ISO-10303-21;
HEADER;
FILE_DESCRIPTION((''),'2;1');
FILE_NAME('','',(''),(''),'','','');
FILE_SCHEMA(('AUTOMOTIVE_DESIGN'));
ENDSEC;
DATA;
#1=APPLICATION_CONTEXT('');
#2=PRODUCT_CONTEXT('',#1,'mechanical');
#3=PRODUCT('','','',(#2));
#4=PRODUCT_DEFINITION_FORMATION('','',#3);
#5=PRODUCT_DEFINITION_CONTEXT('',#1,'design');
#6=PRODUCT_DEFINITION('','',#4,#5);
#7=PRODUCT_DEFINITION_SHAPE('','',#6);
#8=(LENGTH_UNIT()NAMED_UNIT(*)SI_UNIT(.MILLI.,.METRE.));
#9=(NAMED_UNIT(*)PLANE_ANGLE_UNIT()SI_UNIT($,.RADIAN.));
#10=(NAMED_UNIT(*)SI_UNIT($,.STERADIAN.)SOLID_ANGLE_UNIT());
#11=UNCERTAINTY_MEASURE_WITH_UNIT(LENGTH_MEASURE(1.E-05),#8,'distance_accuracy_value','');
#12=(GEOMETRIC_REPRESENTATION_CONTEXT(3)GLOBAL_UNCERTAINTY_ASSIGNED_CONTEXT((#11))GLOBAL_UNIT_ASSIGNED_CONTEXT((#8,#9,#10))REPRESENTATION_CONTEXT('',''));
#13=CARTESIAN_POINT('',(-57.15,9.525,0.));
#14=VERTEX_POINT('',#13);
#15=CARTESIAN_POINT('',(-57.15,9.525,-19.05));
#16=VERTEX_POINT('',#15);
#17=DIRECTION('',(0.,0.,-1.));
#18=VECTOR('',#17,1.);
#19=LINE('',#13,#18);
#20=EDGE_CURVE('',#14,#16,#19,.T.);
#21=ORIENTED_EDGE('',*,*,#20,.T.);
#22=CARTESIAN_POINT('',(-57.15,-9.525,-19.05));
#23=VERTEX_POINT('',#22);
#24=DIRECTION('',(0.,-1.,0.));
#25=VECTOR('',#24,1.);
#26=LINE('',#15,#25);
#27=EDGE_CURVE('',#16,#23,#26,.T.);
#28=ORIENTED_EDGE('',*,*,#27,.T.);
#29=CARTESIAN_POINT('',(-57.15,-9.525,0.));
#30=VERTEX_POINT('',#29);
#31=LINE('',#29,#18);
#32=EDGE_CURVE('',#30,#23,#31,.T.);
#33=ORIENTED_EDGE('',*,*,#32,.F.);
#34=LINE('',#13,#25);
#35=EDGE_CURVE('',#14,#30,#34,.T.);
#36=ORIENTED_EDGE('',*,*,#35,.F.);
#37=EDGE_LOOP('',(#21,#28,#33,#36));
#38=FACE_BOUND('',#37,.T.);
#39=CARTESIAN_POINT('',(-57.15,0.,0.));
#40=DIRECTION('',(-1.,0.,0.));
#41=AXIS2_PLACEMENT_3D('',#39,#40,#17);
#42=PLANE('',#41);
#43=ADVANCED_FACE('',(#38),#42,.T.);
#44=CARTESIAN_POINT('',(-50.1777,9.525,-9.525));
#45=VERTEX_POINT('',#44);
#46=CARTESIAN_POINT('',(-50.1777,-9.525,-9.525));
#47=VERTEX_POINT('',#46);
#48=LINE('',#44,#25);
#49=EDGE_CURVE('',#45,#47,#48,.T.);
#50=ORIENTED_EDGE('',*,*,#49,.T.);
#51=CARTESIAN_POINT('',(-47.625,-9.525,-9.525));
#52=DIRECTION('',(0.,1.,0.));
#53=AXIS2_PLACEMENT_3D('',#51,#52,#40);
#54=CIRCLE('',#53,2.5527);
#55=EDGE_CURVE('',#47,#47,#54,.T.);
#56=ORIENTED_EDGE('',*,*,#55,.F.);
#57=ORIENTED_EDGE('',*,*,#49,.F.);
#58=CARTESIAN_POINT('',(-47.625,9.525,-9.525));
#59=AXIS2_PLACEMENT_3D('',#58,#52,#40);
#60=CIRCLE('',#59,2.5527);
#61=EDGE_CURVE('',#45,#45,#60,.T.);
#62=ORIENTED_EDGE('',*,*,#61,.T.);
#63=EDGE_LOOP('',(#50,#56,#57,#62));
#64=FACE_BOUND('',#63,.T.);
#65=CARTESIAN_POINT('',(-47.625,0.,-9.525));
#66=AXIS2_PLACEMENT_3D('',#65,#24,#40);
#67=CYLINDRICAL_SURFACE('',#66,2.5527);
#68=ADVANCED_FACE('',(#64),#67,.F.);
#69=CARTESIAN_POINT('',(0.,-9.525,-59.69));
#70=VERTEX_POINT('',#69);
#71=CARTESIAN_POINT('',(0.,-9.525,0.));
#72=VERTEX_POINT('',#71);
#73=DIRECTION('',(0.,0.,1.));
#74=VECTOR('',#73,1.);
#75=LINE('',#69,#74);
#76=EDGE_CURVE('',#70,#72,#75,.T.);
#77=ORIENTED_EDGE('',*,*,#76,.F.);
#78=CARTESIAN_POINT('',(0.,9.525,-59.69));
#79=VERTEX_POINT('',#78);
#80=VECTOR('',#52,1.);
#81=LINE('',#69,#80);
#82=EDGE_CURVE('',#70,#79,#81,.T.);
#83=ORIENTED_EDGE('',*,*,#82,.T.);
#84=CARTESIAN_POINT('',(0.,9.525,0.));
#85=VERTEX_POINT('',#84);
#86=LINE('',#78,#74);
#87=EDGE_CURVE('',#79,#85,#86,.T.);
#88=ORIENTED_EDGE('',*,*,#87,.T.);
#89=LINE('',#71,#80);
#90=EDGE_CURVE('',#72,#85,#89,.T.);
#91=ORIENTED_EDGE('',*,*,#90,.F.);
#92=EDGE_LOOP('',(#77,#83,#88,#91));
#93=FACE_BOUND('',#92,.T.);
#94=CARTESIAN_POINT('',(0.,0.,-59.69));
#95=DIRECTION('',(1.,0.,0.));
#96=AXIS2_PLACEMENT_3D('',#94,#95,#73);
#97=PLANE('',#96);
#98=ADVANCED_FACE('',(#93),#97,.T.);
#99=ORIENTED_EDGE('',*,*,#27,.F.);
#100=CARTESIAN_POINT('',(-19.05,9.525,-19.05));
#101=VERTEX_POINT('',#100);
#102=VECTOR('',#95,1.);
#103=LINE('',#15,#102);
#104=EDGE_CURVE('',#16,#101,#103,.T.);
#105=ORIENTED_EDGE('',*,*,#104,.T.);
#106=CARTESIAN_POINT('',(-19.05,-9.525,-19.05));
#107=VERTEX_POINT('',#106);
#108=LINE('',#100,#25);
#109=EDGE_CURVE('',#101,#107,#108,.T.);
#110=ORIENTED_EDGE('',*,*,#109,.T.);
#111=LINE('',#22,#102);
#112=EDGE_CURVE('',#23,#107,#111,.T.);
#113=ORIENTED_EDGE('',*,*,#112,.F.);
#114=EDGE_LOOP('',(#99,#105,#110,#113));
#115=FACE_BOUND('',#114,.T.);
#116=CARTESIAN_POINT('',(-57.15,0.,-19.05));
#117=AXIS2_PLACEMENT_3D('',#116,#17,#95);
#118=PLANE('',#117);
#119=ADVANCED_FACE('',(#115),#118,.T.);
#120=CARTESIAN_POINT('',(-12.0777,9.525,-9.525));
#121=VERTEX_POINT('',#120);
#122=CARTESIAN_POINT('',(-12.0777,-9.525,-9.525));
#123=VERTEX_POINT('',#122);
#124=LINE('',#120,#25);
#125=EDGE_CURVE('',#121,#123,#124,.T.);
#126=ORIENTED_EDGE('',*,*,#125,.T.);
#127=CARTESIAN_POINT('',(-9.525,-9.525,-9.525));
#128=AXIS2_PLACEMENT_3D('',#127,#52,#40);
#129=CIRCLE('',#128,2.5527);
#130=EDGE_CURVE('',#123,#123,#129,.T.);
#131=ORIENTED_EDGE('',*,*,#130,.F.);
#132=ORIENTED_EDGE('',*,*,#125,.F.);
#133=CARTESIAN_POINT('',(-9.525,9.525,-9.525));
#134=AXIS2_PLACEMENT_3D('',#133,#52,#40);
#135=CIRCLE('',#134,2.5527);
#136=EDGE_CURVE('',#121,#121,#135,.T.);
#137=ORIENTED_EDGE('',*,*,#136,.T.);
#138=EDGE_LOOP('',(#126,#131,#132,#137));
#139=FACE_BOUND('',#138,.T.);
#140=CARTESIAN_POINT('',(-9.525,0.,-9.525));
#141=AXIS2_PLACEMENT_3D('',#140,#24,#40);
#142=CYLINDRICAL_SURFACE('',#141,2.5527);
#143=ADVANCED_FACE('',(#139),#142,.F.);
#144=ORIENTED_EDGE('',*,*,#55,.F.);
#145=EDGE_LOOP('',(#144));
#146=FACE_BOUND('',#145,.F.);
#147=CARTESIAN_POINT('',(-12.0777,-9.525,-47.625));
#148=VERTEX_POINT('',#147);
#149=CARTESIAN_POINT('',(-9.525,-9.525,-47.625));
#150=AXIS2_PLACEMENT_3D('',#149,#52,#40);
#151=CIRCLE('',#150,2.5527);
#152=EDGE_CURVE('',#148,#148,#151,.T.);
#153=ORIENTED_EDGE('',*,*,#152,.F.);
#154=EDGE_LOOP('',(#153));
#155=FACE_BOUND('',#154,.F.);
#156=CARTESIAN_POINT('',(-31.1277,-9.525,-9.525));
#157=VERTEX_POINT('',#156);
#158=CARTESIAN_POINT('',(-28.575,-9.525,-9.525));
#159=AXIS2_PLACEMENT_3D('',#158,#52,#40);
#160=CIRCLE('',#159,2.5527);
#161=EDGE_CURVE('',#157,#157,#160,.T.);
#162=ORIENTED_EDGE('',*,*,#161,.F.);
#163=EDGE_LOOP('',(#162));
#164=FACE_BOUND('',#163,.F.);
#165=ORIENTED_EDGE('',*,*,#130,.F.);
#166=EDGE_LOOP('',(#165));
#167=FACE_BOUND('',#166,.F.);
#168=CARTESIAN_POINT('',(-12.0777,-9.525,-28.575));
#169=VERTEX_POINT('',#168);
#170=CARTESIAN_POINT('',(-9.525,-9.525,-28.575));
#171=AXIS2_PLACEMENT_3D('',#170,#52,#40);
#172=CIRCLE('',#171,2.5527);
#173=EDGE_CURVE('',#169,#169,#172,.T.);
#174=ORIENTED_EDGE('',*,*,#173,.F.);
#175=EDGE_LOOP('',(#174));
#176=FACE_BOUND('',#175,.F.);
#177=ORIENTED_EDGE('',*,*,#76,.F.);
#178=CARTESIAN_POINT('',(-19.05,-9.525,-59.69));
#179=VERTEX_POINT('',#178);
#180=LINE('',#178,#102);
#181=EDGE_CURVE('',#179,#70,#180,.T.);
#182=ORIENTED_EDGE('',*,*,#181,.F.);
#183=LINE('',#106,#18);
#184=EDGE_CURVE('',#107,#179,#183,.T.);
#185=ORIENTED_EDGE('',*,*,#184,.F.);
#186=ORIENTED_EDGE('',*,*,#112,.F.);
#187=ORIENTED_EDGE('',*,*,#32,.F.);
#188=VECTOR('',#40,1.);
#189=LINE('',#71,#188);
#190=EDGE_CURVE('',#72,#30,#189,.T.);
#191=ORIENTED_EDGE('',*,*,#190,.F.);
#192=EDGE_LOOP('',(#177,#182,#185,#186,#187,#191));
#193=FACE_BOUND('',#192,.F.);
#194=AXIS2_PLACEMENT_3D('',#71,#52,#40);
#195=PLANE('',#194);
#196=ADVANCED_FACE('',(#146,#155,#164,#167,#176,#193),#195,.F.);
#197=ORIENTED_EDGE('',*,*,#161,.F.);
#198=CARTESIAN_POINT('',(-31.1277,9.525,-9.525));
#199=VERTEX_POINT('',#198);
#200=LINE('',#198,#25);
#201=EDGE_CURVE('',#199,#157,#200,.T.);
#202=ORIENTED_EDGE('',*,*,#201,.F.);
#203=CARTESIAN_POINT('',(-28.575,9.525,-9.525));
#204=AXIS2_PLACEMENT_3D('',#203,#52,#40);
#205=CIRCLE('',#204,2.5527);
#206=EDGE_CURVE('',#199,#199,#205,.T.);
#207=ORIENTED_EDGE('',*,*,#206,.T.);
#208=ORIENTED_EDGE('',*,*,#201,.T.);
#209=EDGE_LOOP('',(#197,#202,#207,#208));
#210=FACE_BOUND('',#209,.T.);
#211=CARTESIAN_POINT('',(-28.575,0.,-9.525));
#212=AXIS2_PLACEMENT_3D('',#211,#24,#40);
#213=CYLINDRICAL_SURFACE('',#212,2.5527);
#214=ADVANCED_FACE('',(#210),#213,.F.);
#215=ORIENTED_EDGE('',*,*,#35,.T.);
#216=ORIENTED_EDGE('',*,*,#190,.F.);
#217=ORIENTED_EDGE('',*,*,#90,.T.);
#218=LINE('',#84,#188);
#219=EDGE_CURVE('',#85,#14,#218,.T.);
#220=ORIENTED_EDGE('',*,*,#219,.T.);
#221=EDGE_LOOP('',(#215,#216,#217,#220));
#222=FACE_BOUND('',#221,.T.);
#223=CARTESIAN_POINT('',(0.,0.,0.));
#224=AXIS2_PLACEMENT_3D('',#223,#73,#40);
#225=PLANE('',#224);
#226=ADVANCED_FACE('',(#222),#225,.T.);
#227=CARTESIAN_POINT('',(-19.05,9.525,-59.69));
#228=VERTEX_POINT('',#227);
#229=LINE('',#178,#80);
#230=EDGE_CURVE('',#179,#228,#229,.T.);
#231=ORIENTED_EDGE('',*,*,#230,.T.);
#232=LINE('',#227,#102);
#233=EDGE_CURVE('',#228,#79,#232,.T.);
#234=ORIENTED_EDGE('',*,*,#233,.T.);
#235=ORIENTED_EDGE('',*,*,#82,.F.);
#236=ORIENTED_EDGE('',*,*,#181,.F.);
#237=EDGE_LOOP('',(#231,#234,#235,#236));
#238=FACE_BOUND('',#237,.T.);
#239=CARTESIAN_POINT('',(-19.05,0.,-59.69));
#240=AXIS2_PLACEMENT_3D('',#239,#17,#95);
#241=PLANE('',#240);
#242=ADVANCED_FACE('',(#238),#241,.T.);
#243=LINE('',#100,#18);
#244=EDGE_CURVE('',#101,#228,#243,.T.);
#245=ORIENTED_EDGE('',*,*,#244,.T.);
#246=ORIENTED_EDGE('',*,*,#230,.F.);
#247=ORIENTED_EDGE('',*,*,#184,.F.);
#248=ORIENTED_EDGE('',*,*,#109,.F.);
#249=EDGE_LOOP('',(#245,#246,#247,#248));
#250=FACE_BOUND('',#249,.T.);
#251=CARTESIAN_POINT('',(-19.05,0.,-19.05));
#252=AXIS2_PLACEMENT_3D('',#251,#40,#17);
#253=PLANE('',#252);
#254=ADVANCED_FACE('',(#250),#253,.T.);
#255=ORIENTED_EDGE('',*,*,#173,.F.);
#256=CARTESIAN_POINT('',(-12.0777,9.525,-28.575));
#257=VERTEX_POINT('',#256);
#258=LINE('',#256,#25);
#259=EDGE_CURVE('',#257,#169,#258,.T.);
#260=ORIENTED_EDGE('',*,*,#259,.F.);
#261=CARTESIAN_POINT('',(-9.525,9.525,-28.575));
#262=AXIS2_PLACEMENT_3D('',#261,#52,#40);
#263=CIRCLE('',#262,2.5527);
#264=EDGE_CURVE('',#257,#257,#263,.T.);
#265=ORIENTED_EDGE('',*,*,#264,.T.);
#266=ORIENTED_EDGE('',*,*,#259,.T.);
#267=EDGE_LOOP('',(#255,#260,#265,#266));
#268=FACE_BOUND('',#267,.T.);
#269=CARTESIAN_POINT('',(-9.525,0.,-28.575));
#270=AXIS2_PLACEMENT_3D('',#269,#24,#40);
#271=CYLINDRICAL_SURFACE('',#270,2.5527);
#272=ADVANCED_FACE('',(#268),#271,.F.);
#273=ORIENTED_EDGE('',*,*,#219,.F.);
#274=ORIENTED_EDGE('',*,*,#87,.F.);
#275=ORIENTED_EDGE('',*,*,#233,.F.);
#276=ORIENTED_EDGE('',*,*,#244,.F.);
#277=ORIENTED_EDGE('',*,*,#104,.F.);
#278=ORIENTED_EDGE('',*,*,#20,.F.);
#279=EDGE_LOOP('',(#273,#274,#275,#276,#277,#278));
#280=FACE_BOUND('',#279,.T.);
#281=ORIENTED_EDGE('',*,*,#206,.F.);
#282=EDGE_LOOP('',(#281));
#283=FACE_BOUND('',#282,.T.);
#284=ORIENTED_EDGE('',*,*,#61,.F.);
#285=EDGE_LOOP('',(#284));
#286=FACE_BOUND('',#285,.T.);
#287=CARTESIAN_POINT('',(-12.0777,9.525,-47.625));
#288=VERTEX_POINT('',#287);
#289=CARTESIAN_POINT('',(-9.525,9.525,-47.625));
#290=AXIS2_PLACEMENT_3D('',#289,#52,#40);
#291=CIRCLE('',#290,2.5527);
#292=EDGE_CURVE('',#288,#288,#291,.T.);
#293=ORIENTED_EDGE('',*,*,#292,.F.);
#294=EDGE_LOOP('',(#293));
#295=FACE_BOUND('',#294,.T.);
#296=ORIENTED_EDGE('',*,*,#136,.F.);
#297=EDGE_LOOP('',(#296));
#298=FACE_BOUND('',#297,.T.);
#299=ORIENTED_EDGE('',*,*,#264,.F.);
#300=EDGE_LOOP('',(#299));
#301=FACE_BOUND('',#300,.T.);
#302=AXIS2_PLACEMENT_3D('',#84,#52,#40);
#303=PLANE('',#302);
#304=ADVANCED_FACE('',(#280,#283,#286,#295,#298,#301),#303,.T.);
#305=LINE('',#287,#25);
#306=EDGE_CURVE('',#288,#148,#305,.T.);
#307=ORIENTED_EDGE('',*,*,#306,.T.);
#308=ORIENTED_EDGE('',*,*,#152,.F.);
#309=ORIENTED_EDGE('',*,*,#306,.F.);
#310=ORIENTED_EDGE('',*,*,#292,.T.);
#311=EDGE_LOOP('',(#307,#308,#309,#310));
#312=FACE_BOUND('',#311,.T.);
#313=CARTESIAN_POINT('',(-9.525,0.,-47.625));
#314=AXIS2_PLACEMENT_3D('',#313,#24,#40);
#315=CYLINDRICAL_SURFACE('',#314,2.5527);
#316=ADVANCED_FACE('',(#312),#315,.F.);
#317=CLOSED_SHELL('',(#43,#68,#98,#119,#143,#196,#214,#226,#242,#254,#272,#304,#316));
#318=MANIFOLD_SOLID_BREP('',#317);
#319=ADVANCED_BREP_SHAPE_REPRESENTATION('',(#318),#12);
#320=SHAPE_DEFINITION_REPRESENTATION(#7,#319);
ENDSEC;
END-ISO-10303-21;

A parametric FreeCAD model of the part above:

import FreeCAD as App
import Part
import Sketcher
Q = App.Units.Quantity


def add_polygon(sketch, points):
    """Adds a closed chain of lines whose ends are joined by coincident constraints."""
    first, n = sketch.GeometryCount, len(points)
    for a, b in zip(points, points[1:] + points[:1]):
        sketch.addGeometry(Part.LineSegment(App.Vector(*a, 0), App.Vector(*b, 0)), False)
    for i in range(n):
        sketch.addConstraint(Sketcher.Constraint("Coincident", first + i, 2, first + (i + 1) % n, 1))

doc = App.newDocument("Part")
body = doc.addObject("PartDesign::Body", "Body")

# Sketch on XZ plane
sketch1 = body.newObject("Sketcher::SketchObject", "Sketch")
sketch1.AttachmentSupport = (doc.getObject("XZ_Plane"), [""])
sketch1.MapMode = "FlatFace"
add_polygon(sketch1, [(-57.1, 0), (0, 0), (0, -59.7), (-19.1, -59.7), (-19.1, -19.1), (-57.1, -19.1)])  # lines 0-5
sketch1.addGeometry(Part.Circle(App.Vector(-9.5, -47.6, 0), App.Vector(0, 0, 1), 2.6), False)  # 6
sketch1.addGeometry(Part.Circle(App.Vector(-9.5, -28.6, 0), App.Vector(0, 0, 1), 2.6), False)  # 7
sketch1.addGeometry(Part.Circle(App.Vector(-9.5, -9.5, 0), App.Vector(0, 0, 1), 2.6), False)  # 8
sketch1.addGeometry(Part.Circle(App.Vector(-28.6, -9.5, 0), App.Vector(0, 0, 1), 2.6), False)  # 9
sketch1.addGeometry(Part.Circle(App.Vector(-47.6, -9.5, 0), App.Vector(0, 0, 1), 2.6), False)  # 10
sketch1.addConstraint(Sketcher.Constraint("Horizontal", 0))
sketch1.addConstraint(Sketcher.Constraint("Vertical", 1))
sketch1.addConstraint(Sketcher.Constraint("Horizontal", 2))
sketch1.addConstraint(Sketcher.Constraint("Vertical", 3))
sketch1.addConstraint(Sketcher.Constraint("Horizontal", 4))
sketch1.addConstraint(Sketcher.Constraint("Vertical", 5))
sketch1.addConstraint(Sketcher.Constraint("Coincident", 0, 2, -1, 1))
sketch1.addConstraint(Sketcher.Constraint("Equal", 6, 7))
sketch1.addConstraint(Sketcher.Constraint("Equal", 7, 8))
sketch1.addConstraint(Sketcher.Constraint("Equal", 8, 9))
sketch1.addConstraint(Sketcher.Constraint("Equal", 9, 10))
sketch1.addConstraint(Sketcher.Constraint("Horizontal", 8, 3, 9, 3))
sketch1.addConstraint(Sketcher.Constraint("Horizontal", 9, 3, 10, 3))
sketch1.addConstraint(Sketcher.Constraint("Vertical", 6, 3, 7, 3))
sketch1.addConstraint(Sketcher.Constraint("Vertical", 7, 3, 8, 3))
sketch1.addConstraint(Sketcher.Constraint("Equal", 2, 5))
sketch1.addConstraint(Sketcher.Constraint("Diameter", 6, Q("0.201 in")))
sketch1.addConstraint(Sketcher.Constraint("DistanceX", 0, 1, 0, 2, Q("2.25 in")))
sketch1.addConstraint(Sketcher.Constraint("DistanceX", 2, 2, 2, 1, Q("0.75 in")))
sketch1.addConstraint(Sketcher.Constraint("DistanceY", 1, 2, 1, 1, Q("2.35 in")))
sketch1.addConstraint(Sketcher.Constraint("DistanceY", 6, 3, 7, 3, Q("0.75 in")))
sketch1.addConstraint(Sketcher.Constraint("DistanceY", 7, 3, 8, 3, Q("0.75 in")))
sketch1.addConstraint(Sketcher.Constraint("DistanceX", 9, 3, 8, 3, Q("0.75 in")))
sketch1.addConstraint(Sketcher.Constraint("DistanceX", 10, 3, 9, 3, Q("0.75 in")))
sketch1.addConstraint(Sketcher.Constraint("DistanceY", 7, 3, -1, 1, Q("1.125 in")))
sketch1.addConstraint(Sketcher.Constraint("DistanceX", 9, 3, -1, 1, Q("1.125 in")))
pad1 = body.newObject("PartDesign::Pad", "Pad")
pad1.Profile = sketch1
pad1.Length = Q("0.75 in")
pad1.Midplane = True

doc.recompute()
